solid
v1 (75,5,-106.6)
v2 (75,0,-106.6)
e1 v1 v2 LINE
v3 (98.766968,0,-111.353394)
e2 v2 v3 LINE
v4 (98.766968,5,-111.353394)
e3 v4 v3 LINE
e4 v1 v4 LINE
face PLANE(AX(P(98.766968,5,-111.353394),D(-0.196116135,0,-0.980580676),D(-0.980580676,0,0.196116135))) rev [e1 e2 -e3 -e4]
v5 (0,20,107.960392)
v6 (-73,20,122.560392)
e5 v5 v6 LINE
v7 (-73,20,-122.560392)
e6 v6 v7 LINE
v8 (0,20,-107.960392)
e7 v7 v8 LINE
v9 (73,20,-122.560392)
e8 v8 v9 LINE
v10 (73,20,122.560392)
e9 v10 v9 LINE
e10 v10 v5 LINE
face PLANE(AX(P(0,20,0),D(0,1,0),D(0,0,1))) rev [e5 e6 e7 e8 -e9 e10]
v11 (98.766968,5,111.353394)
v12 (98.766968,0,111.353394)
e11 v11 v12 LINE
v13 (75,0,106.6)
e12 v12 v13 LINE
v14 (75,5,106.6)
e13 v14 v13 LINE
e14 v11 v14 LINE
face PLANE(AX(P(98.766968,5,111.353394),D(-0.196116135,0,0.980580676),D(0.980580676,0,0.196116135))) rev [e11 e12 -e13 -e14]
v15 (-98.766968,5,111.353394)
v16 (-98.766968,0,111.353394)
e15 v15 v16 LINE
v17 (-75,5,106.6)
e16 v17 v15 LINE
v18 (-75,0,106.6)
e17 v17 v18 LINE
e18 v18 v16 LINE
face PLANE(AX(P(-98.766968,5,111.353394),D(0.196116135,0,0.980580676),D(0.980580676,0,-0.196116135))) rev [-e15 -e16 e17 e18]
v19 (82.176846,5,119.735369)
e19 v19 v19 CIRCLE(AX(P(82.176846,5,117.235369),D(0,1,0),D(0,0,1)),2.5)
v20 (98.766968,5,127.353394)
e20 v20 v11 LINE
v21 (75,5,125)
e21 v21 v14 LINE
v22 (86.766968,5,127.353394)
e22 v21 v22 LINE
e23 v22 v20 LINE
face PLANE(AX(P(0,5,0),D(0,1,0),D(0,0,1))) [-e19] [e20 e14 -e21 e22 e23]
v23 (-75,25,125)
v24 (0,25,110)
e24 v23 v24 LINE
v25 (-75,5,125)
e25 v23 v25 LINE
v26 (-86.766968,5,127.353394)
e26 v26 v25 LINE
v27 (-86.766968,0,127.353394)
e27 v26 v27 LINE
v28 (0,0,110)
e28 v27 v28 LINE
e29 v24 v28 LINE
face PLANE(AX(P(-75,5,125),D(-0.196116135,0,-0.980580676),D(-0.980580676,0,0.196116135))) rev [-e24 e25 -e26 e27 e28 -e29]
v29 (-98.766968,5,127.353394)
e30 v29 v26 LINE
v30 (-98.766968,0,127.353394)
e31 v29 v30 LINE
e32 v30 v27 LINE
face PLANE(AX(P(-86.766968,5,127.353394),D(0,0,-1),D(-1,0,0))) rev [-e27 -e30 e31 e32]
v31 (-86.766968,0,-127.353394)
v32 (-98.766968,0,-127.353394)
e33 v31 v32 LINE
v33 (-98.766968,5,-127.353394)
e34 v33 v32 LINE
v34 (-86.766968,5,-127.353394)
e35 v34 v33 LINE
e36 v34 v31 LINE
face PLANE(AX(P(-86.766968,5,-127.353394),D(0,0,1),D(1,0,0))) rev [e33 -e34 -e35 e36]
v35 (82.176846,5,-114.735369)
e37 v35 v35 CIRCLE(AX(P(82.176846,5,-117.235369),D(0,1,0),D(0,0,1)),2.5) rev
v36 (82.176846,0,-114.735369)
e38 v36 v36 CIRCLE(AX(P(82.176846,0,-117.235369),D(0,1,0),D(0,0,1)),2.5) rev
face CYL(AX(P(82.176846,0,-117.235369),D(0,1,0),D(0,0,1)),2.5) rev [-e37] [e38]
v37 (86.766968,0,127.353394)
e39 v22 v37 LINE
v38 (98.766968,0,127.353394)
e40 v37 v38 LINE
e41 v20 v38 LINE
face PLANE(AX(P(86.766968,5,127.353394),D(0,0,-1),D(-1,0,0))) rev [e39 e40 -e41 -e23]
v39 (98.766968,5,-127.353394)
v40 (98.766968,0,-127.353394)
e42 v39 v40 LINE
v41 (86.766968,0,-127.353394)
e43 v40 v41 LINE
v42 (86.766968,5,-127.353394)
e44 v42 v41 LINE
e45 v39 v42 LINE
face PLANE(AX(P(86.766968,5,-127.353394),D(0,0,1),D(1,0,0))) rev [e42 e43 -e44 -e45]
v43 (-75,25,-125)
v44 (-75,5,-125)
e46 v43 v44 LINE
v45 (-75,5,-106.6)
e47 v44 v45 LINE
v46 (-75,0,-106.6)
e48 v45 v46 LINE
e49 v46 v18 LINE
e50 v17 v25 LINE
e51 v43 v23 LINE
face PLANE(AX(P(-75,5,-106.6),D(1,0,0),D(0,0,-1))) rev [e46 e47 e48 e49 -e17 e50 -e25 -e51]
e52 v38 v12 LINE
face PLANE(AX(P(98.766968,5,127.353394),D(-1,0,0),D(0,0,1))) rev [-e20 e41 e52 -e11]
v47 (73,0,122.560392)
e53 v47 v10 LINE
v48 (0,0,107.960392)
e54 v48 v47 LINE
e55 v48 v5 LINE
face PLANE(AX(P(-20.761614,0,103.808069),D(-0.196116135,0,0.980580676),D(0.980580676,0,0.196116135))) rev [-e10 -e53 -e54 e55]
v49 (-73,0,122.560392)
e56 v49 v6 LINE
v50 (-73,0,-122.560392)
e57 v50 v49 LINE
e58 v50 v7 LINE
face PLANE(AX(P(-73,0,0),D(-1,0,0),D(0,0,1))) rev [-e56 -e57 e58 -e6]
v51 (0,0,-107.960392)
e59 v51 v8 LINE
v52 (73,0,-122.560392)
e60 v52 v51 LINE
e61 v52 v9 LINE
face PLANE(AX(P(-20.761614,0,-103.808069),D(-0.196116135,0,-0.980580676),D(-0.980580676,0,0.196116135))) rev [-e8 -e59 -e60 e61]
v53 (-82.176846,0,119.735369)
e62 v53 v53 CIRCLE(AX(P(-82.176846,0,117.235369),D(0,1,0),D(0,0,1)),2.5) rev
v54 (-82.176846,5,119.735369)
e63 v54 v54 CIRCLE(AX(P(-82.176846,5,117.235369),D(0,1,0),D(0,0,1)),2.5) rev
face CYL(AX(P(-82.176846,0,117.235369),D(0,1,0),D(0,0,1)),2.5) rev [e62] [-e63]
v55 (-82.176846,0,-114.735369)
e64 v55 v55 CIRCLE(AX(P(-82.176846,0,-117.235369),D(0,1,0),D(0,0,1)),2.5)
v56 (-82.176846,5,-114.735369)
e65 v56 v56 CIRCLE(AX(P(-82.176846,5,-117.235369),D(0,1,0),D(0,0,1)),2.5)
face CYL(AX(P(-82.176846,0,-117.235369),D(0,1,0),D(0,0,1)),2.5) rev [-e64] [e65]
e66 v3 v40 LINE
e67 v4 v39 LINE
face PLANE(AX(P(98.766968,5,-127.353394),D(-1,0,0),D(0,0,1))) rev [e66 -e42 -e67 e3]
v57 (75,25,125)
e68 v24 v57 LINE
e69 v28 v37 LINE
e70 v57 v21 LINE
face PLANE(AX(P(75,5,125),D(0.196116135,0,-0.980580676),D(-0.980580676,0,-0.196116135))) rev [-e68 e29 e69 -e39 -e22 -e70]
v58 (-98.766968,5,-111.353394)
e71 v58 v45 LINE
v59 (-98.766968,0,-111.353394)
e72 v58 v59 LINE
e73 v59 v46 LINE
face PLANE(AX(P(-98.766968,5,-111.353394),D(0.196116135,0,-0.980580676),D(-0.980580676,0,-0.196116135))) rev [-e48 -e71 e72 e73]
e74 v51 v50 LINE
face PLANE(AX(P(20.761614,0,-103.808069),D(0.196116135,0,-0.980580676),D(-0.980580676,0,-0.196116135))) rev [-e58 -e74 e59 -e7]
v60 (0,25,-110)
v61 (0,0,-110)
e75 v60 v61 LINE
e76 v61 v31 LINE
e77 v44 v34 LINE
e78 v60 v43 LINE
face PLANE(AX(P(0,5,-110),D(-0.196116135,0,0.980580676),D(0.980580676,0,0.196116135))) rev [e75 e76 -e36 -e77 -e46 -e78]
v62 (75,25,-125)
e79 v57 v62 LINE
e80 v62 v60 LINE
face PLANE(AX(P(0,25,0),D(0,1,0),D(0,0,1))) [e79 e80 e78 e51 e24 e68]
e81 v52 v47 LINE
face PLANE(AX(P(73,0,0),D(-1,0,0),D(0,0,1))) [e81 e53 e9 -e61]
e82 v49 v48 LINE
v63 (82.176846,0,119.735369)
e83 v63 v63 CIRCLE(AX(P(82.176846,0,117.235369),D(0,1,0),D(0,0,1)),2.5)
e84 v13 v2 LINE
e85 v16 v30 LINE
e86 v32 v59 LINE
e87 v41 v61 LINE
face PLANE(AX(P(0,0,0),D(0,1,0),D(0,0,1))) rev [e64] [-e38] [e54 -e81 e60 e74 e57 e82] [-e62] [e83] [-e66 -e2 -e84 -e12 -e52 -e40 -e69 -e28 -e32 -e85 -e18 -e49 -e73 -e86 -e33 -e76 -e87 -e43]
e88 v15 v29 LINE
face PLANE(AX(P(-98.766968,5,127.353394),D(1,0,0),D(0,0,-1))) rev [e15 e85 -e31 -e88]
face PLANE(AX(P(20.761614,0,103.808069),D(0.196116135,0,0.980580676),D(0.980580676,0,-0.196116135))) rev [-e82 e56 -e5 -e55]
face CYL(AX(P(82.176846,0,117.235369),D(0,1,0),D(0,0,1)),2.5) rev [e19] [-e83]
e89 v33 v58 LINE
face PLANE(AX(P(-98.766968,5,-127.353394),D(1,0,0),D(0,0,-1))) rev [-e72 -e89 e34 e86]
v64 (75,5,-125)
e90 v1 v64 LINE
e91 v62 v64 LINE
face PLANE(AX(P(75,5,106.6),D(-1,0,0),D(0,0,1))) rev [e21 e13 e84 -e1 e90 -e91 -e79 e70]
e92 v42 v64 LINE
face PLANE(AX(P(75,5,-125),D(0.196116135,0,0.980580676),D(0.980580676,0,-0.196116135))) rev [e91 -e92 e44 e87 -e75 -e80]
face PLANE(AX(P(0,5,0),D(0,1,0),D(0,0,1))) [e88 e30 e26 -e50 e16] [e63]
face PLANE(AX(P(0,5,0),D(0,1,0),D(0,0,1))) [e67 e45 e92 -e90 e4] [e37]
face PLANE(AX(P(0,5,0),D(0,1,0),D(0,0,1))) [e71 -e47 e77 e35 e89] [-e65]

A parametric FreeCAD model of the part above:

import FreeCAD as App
import Part
import Sketcher
from FreeCAD import Vector

doc = App.newDocument("Part")
body = doc.addObject("PartDesign::Body", "Body")

sketch1 = body.newObject("Sketcher::SketchObject", "Sketch")
sketch1.AttachmentSupport = (doc.getObject("XZ_Plane"), [""])
sketch1.MapMode = "FlatFace"
sketch1.addGeometry(Part.LineSegment(Vector(-75, -106.6, 0), Vector(-75, 106.6, 0)), False)
sketch1.addGeometry(Part.LineSegment(Vector(-75, 106.6, 0), Vector(-98.766968, 111.353394, 0)), False)
sketch1.addGeometry(Part.LineSegment(Vector(-98.766968, 111.353394, 0), Vector(-98.766968, 127.353394, 0)), False)
sketch1.addGeometry(Part.LineSegment(Vector(-98.766968, 127.353394, 0), Vector(-86.766968, 127.353394, 0)), False)
sketch1.addGeometry(Part.LineSegment(Vector(-86.766968, 127.353394, 0), Vector(-75, 125, 0)), False)
sketch1.addGeometry(Part.LineSegment(Vector(-75, 125, 0), Vector(0, 110, 0)), False)
sketch1.addGeometry(Part.LineSegment(Vector(0, 110, 0), Vector(75, 125, 0)), False)
sketch1.addGeometry(Part.LineSegment(Vector(75, 125, 0), Vector(86.766968, 127.353394, 0)), False)
sketch1.addGeometry(Part.LineSegment(Vector(86.766968, 127.353394, 0), Vector(98.766968, 127.353394, 0)), False)
sketch1.addGeometry(Part.LineSegment(Vector(98.766968, 127.353394, 0), Vector(98.766968, 111.353394, 0)), False)
sketch1.addGeometry(Part.LineSegment(Vector(98.766968, 111.353394, 0), Vector(75, 106.6, 0)), False)
sketch1.addGeometry(Part.LineSegment(Vector(75, 106.6, 0), Vector(75, -106.6, 0)), False)
sketch1.addGeometry(Part.LineSegment(Vector(75, -106.6, 0), Vector(98.766968, -111.353394, 0)), False)
sketch1.addGeometry(Part.LineSegment(Vector(98.766968, -111.353394, 0), Vector(98.766968, -127.353394, 0)), False)
sketch1.addGeometry(Part.LineSegment(Vector(98.766968, -127.353394, 0), Vector(86.766968, -127.353394, 0)), False)
sketch1.addGeometry(Part.LineSegment(Vector(86.766968, -127.353394, 0), Vector(75, -125, 0)), False)
sketch1.addGeometry(Part.LineSegment(Vector(75, -125, 0), Vector(0, -110, 0)), False)
sketch1.addGeometry(Part.LineSegment(Vector(0, -110, 0), Vector(-75, -125, 0)), False)
sketch1.addGeometry(Part.LineSegment(Vector(-75, -125, 0), Vector(-86.766968, -127.353394, 0)), False)
sketch1.addGeometry(Part.LineSegment(Vector(-86.766968, -127.353394, 0), Vector(-98.766968, -127.353394, 0)), False)
sketch1.addGeometry(Part.LineSegment(Vector(-98.766968, -127.353394, 0), Vector(-98.766968, -111.353394, 0)), False)
sketch1.addGeometry(Part.LineSegment(Vector(-98.766968, -111.353394, 0), Vector(-75, -106.6, 0)), False)
sketch1.addConstraint(Sketcher.Constraint("Coincident", 0, 2, 1, 1))
sketch1.addConstraint(Sketcher.Constraint("Coincident", 1, 2, 2, 1))
sketch1.addConstraint(Sketcher.Constraint("Coincident", 2, 2, 3, 1))
sketch1.addConstraint(Sketcher.Constraint("Coincident", 3, 2, 4, 1))
sketch1.addConstraint(Sketcher.Constraint("Coincident", 4, 2, 5, 1))
sketch1.addConstraint(Sketcher.Constraint("Coincident", 5, 2, 6, 1))
sketch1.addConstraint(Sketcher.Constraint("Coincident", 6, 2, 7, 1))
sketch1.addConstraint(Sketcher.Constraint("Coincident", 7, 2, 8, 1))
sketch1.addConstraint(Sketcher.Constraint("Coincident", 8, 2, 9, 1))
sketch1.addConstraint(Sketcher.Constraint("Coincident", 9, 2, 10, 1))
sketch1.addConstraint(Sketcher.Constraint("Coincident", 10, 2, 11, 1))
sketch1.addConstraint(Sketcher.Constraint("Coincident", 11, 2, 12, 1))
sketch1.addConstraint(Sketcher.Constraint("Coincident", 12, 2, 13, 1))
sketch1.addConstraint(Sketcher.Constraint("Coincident", 13, 2, 14, 1))
sketch1.addConstraint(Sketcher.Constraint("Coincident", 14, 2, 15, 1))
sketch1.addConstraint(Sketcher.Constraint("Coincident", 15, 2, 16, 1))
sketch1.addConstraint(Sketcher.Constraint("Coincident", 16, 2, 17, 1))
sketch1.addConstraint(Sketcher.Constraint("Coincident", 17, 2, 18, 1))
sketch1.addConstraint(Sketcher.Constraint("Coincident", 18, 2, 19, 1))
sketch1.addConstraint(Sketcher.Constraint("Coincident", 19, 2, 20, 1))
sketch1.addConstraint(Sketcher.Constraint("Coincident", 20, 2, 21, 1))
sketch1.addConstraint(Sketcher.Constraint("Coincident", 21, 2, 0, 1))
sketch1.addConstraint(Sketcher.Constraint("Vertical", 0))
sketch1.addConstraint(Sketcher.Constraint("Vertical", 2))
sketch1.addConstraint(Sketcher.Constraint("Horizontal", 3))
sketch1.addConstraint(Sketcher.Constraint("Horizontal", 8))
sketch1.addConstraint(Sketcher.Constraint("Vertical", 9))
sketch1.addConstraint(Sketcher.Constraint("Vertical", 11))
sketch1.addConstraint(Sketcher.Constraint("Vertical", 13))
sketch1.addConstraint(Sketcher.Constraint("Horizontal", 14))
sketch1.addConstraint(Sketcher.Constraint("Horizontal", 19))
sketch1.addConstraint(Sketcher.Constraint("Vertical", 20))
sketch1.addConstraint(Sketcher.Constraint("Symmetric", 0, 2, 11, 2, -1, 1))
sketch1.addConstraint(Sketcher.Constraint("Symmetric", 1, 2, 12, 2, -1, 1))
sketch1.addConstraint(Sketcher.Constraint("Symmetric", 3, 2, 14, 2, -1, 1))
sketch1.addConstraint(Sketcher.Constraint("Symmetric", 4, 2, 15, 2, -1, 1))
sketch1.addConstraint(Sketcher.Constraint("Symmetric", 5, 2, 16, 2, -1, 1))
sketch1.addConstraint(Sketcher.Constraint("Symmetric", 6, 2, 17, 2, -1, 1))
sketch1.addConstraint(Sketcher.Constraint("Symmetric", 7, 2, 18, 2, -1, 1))
sketch1.addConstraint(Sketcher.Constraint("Symmetric", 9, 2, 20, 2, -1, 1))
sketch1.addConstraint(Sketcher.Constraint("Symmetric", 4, 2, 6, 2, -2))
sketch1.addConstraint(Sketcher.Constraint("Symmetric", 3, 2, 7, 2, -2))
sketch1.addConstraint(Sketcher.Constraint("Symmetric", 1, 2, 9, 2, -2))
sketch1.addConstraint(Sketcher.Constraint("PointOnObject", 5, 2, -2))
sketch1.addConstraint(Sketcher.Constraint("Parallel", 1, 4))
sketch1.addConstraint(Sketcher.Constraint("Parallel", 4, 5))
sketch1.addConstraint(Sketcher.Constraint("Parallel", 7, 10))
sketch1.addConstraint(Sketcher.Constraint("Parallel", 18, 21))
sketch1.addConstraint(Sketcher.Constraint("Vertical", 0, 2, 4, 2))
sketch1.addConstraint(Sketcher.Constraint("DistanceX", 3, 1, 3, 2, 12.0))
sketch1.addConstraint(Sketcher.Constraint("DistanceY", 2, 1, 2, 2, 16.0))
sketch1.addConstraint(Sketcher.Constraint("Distance", 4, 12.0))
sketch1.addConstraint(Sketcher.Constraint("DistanceY", 0, 1, 0, 2, 213.2))
sketch1.addConstraint(Sketcher.Constraint("DistanceX", 0, 2, -1, 1, 75.0))
sketch1.addConstraint(Sketcher.Constraint("DistanceY", -1, 1, 4, 2, 125.0))
pad1 = body.newObject("PartDesign::Pad", "Pad")
pad1.Profile = sketch1
pad1.Length = 5
pad1.Reversed = True

sketch2 = body.newObject("Sketcher::SketchObject", "Sketch001")
sketch2.AttachmentSupport = (doc.getObject("XZ_Plane"), [""])
sketch2.MapMode = "FlatFace"
sketch2.AttachmentOffset = App.Placement(Vector(0, 0, -5), App.Rotation())
sketch2.addGeometry(Part.LineSegment(Vector(-73, 122.6, 0), Vector(0, 108, 0)), False)
sketch2.addGeometry(Part.LineSegment(Vector(0, 108, 0), Vector(73, 122.6, 0)), False)
sketch2.addGeometry(Part.LineSegment(Vector(73, 122.6, 0), Vector(73, -122.6, 0)), False)
sketch2.addGeometry(Part.LineSegment(Vector(73, -122.6, 0), Vector(0, -108, 0)), False)
sketch2.addGeometry(Part.LineSegment(Vector(0, -108, 0), Vector(-73, -122.6, 0)), False)
sketch2.addGeometry(Part.LineSegment(Vector(-73, -122.6, 0), Vector(-73, 122.6, 0)), False)
sketch2.addGeometry(Part.Circle(Vector(-82.2, 117.2, 0), Vector(0, 0, 1), 2.5), False)
sketch2.addGeometry(Part.Circle(Vector(82.2, 117.2, 0), Vector(0, 0, 1), 2.5), False)
sketch2.addGeometry(Part.Circle(Vector(-82.2, -117.2, 0), Vector(0, 0, 1), 2.5), False)
sketch2.addGeometry(Part.Circle(Vector(82.2, -117.2, 0), Vector(0, 0, 1), 2.5), False)
sketch2.addConstraint(Sketcher.Constraint("Coincident", 0, 2, 1, 1))
sketch2.addConstraint(Sketcher.Constraint("Coincident", 1, 2, 2, 1))
sketch2.addConstraint(Sketcher.Constraint("Coincident", 2, 2, 3, 1))
sketch2.addConstraint(Sketcher.Constraint("Coincident", 3, 2, 4, 1))
sketch2.addConstraint(Sketcher.Constraint("Coincident", 4, 2, 5, 1))
sketch2.addConstraint(Sketcher.Constraint("Coincident", 5, 2, 0, 1))
sketch2.addConstraint(Sketcher.Constraint("Vertical", 2))
sketch2.addConstraint(Sketcher.Constraint("Vertical", 5))
sketch2.addConstraint(Sketcher.Constraint("Equal", 6, 7))
sketch2.addConstraint(Sketcher.Constraint("Equal", 7, 8))
sketch2.addConstraint(Sketcher.Constraint("Equal", 8, 9))
sketch2.addConstraint(Sketcher.Constraint("Symmetric", 7, 3, 8, 3, -1, 1))
sketch2.addConstraint(Sketcher.Constraint("Symmetric", 6, 3, 9, 3, -1, 1))
sketch2.addConstraint(Sketcher.Constraint("Symmetric", 0, 2, 3, 2, -1, 1))
sketch2.addConstraint(Sketcher.Constraint("Symmetric", 1, 2, 4, 2, -1, 1))
sketch2.addConstraint(Sketcher.Constraint("Symmetric", 6, 3, 7, 3, -2))
sketch2.addConstraint(Sketcher.Constraint("PointOnObject", 0, 2, -2))
sketch2.addConstraint(Sketcher.Constraint("Parallel", 0, 3))
sketch2.addConstraint(Sketcher.Constraint("Horizontal", 2, 2, 4, 2))
sketch2.addConstraint(Sketcher.Constraint("Diameter", 6, 5.0))
sketch2.addConstraint(Sketcher.Constraint("DistanceX", -1, 1, 1, 2, 73.0))
sketch2.addConstraint(Sketcher.Constraint("DistanceY", 0, 2, 1, 2, 14.6))
sketch2.addConstraint(Sketcher.Constraint("DistanceY", 2, 2, 2, 1, 245.120784))
sketch2.addConstraint(Sketcher.Constraint("DistanceY", -1, 1, 6, 3, 117.235369))
sketch2.addConstraint(Sketcher.Constraint("DistanceX", 6, 3, -1, 1, 82.176846))
pocket1 = body.newObject("PartDesign::Pocket", "Pocket")
pocket1.Profile = sketch2
pocket1.Type = "ThroughAll"
pocket1.Reversed = True

sketch3 = body.newObject("Sketcher::SketchObject", "Sketch002")
sketch3.AttachmentSupport = (doc.getObject("XZ_Plane"), [""])
sketch3.MapMode = "FlatFace"
sketch3.AttachmentOffset = App.Placement(Vector(0, 0, -5), App.Rotation())
sketch3.addGeometry(Part.LineSegment(Vector(-75, -125, 0), Vector(-75, 125, 0)), False)
sketch3.addGeometry(Part.LineSegment(Vector(-75, 125, 0), Vector(0, 110, 0)), False)
sketch3.addGeometry(Part.LineSegment(Vector(0, 110, 0), Vector(75, 125, 0)), False)
sketch3.addGeometry(Part.LineSegment(Vector(75, 125, 0), Vector(75, -125, 0)), False)
sketch3.addGeometry(Part.LineSegment(Vector(75, -125, 0), Vector(0, -110, 0)), False)
sketch3.addGeometry(Part.LineSegment(Vector(0, -110, 0), Vector(-75, -125, 0)), False)
sketch3.addGeometry(Part.LineSegment(Vector(73, 123, 0), Vector(0, 108, 0)), False)
sketch3.addGeometry(Part.LineSegment(Vector(0, 108, 0), Vector(-73, 123, 0)), False)
sketch3.addGeometry(Part.LineSegment(Vector(-73, 123, 0), Vector(-73, -123, 0)), False)
sketch3.addGeometry(Part.LineSegment(Vector(-73, -123, 0), Vector(0, -108, 0)), False)
sketch3.addGeometry(Part.LineSegment(Vector(0, -108, 0), Vector(73, -123, 0)), False)
sketch3.addGeometry(Part.LineSegment(Vector(73, -123, 0), Vector(73, 123, 0)), False)
sketch3.addConstraint(Sketcher.Constraint("Coincident", 0, 2, 1, 1))
sketch3.addConstraint(Sketcher.Constraint("Coincident", 1, 2, 2, 1))
sketch3.addConstraint(Sketcher.Constraint("Coincident", 2, 2, 3, 1))
sketch3.addConstraint(Sketcher.Constraint("Coincident", 3, 2, 4, 1))
sketch3.addConstraint(Sketcher.Constraint("Coincident", 4, 2, 5, 1))
sketch3.addConstraint(Sketcher.Constraint("Coincident", 5, 2, 0, 1))
sketch3.addConstraint(Sketcher.Constraint("Coincident", 6, 2, 7, 1))
sketch3.addConstraint(Sketcher.Constraint("Coincident", 7, 2, 8, 1))
sketch3.addConstraint(Sketcher.Constraint("Coincident", 8, 2, 9, 1))
sketch3.addConstraint(Sketcher.Constraint("Coincident", 9, 2, 10, 1))
sketch3.addConstraint(Sketcher.Constraint("Coincident", 10, 2, 11, 1))
sketch3.addConstraint(Sketcher.Constraint("Coincident", 11, 2, 6, 1))
sketch3.addConstraint(Sketcher.Constraint("Vertical", 0))
sketch3.addConstraint(Sketcher.Constraint("Vertical", 3))
sketch3.addConstraint(Sketcher.Constraint("Vertical", 8))
sketch3.addConstraint(Sketcher.Constraint("Vertical", 11))
sketch3.addConstraint(Sketcher.Constraint("Symmetric", 0, 2, 3, 2, -1, 1))
sketch3.addConstraint(Sketcher.Constraint("Symmetric", 1, 2, 4, 2, -1, 1))
sketch3.addConstraint(Sketcher.Constraint("Symmetric", 6, 2, 9, 2, -1, 1))
sketch3.addConstraint(Sketcher.Constraint("Symmetric", 7, 2, 10, 2, -1, 1))
sketch3.addConstraint(Sketcher.Constraint("PointOnObject", 1, 2, -2))
sketch3.addConstraint(Sketcher.Constraint("PointOnObject", 6, 2, -2))
sketch3.addConstraint(Sketcher.Constraint("Parallel", 2, 5))
sketch3.addConstraint(Sketcher.Constraint("Parallel", 5, 6))
sketch3.addConstraint(Sketcher.Constraint("Parallel", 4, 7))
sketch3.addConstraint(Sketcher.Constraint("Parallel", 6, 9))
sketch3.addConstraint(Sketcher.Constraint("Horizontal", 0, 2, 2, 2))
sketch3.addConstraint(Sketcher.Constraint("DistanceY", 0, 1, 0, 2, 250.0))
sketch3.addConstraint(Sketcher.Constraint("DistanceX", 0, 2, -1, 1, 75.0))
sketch3.addConstraint(Sketcher.Constraint("DistanceY", -1, 1, 1, 2, 110.0))
sketch3.addConstraint(Sketcher.Constraint("DistanceX", 7, 2, -1, 1, 73.0))
sketch3.addConstraint(Sketcher.Constraint("DistanceY", 8, 2, 8, 1, 245.120784))
pad2 = body.newObject("PartDesign::Pad", "Pad001")
pad2.Profile = sketch3
pad2.Length = 20
pad2.Reversed = True

sketch4 = body.newObject("Sketcher::SketchObject", "Sketch003")
sketch4.AttachmentSupport = (doc.getObject("XZ_Plane"), [""])
sketch4.MapMode = "FlatFace"
sketch4.AttachmentOffset = App.Placement(Vector(0, 0, -25), App.Rotation())
sketch4.addGeometry(Part.LineSegment(Vector(75, -125, 0), Vector(0, -110, 0)), False)
sketch4.addGeometry(Part.LineSegment(Vector(0, -110, 0), Vector(-75, -125, 0)), False)
sketch4.addGeometry(Part.LineSegment(Vector(-75, -125, 0), Vector(-75, 125, 0)), False)
sketch4.addGeometry(Part.LineSegment(Vector(-75, 125, 0), Vector(0, 110, 0)), False)
sketch4.addGeometry(Part.LineSegment(Vector(0, 110, 0), Vector(75, 125, 0)), False)
sketch4.addGeometry(Part.LineSegment(Vector(75, 125, 0), Vector(75, -125, 0)), False)
sketch4.addConstraint(Sketcher.Constraint("Coincident", 0, 2, 1, 1))
sketch4.addConstraint(Sketcher.Constraint("Coincident", 1, 2, 2, 1))
sketch4.addConstraint(Sketcher.Constraint("Coincident", 2, 2, 3, 1))
sketch4.addConstraint(Sketcher.Constraint("Coincident", 3, 2, 4, 1))
sketch4.addConstraint(Sketcher.Constraint("Coincident", 4, 2, 5, 1))
sketch4.addConstraint(Sketcher.Constraint("Coincident", 5, 2, 0, 1))
sketch4.addConstraint(Sketcher.Constraint("Vertical", 2))
sketch4.addConstraint(Sketcher.Constraint("Vertical", 5))
sketch4.addConstraint(Sketcher.Constraint("Symmetric", 0, 2, 3, 2, -1, 1))
sketch4.addConstraint(Sketcher.Constraint("Symmetric", 1, 2, 4, 2, -1, 1))
sketch4.addConstraint(Sketcher.Constraint("PointOnObject", 0, 2, -2))
sketch4.addConstraint(Sketcher.Constraint("Parallel", 0, 3))
sketch4.addConstraint(Sketcher.Constraint("Horizontal", 2, 2, 4, 2))
sketch4.addConstraint(Sketcher.Constraint("DistanceY", 2, 1, 2, 2, 250.0))
sketch4.addConstraint(Sketcher.Constraint("DistanceY", 0, 2, -1, 1, 110.0))
sketch4.addConstraint(Sketcher.Constraint("DistanceX", 1, 2, -1, 1, 75.0))
pad3 = body.newObject("PartDesign::Pad", "Pad002")
pad3.Profile = sketch4
pad3.Length = 5

doc.recompute()
